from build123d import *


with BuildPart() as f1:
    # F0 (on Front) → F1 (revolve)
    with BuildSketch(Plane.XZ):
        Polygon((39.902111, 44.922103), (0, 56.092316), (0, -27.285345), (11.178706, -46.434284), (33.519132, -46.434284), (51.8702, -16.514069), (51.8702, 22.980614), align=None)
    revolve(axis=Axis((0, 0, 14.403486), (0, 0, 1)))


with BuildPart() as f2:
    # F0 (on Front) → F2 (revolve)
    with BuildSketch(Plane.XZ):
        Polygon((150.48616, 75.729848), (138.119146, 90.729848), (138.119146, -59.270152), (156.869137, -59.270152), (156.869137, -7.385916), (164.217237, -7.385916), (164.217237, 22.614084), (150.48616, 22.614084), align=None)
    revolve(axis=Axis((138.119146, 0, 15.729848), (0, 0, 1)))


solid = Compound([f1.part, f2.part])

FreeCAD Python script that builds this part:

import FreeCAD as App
import Part
import Sketcher
Q = App.Units.Quantity


def add_polygon(sketch, points):
    """Adds a closed chain of lines whose ends are joined by coincident constraints."""
    first, n = sketch.GeometryCount, len(points)
    for a, b in zip(points, points[1:] + points[:1]):
        sketch.addGeometry(Part.LineSegment(App.Vector(*a, 0), App.Vector(*b, 0)), False)
    for i in range(n):
        sketch.addConstraint(Sketcher.Constraint("Coincident", first + i, 2, first + (i + 1) % n, 1))

doc = App.newDocument("Part")
params = doc.addObject("Spreadsheet::Sheet", "Params")
for row, (alias, value) in enumerate([
    ("revolution_angle", "360 deg"),
    ("sketch2_height", "150 mm"),
    ("sketch2_height2", "30 mm"),
    ("revolution2_angle", "360 deg"),
], start=1):
    params.set(f"A{row}", alias)
    params.set(f"B{row}", "=" + value)
    params.setAlias(f"B{row}", alias)

body = doc.addObject("PartDesign::Body", "Body")

# Sketch on XZ plane
sketch1 = body.newObject("Sketcher::SketchObject", "Sketch")
sketch1.AttachmentSupport = (doc.getObject("XZ_Plane"), [""])
sketch1.MapMode = "FlatFace"
add_polygon(sketch1, [(39.902111, 44.922103), (0, 56.092316), (0, -27.285345), (11.178706, -46.434284), (33.519132, -46.434284), (51.8702, -16.514069), (51.8702, 22.980614)])  # lines 0-6
sketch1.addConstraint([
    Sketcher.Constraint("Vertical", 1),
    Sketcher.Constraint("Horizontal", 3),
    Sketcher.Constraint("Vertical", 5),
    Sketcher.Constraint("PointOnObject", 0, 2, -2),
    Sketcher.Constraint("DistanceY", 1, 2, 1, 1, Q("83.377661 mm")),
    Sketcher.Constraint("DistanceX", -1, 1, 4, 2, Q("51.8702 mm")),
    Sketcher.Constraint("DistanceY", 2, 2, 0, 2, Q("102.5266 mm")),
    Sketcher.Constraint("DistanceY", 5, 2, 0, 2, Q("33.111702 mm")),
    Sketcher.Constraint("Distance", 0, Q("41.436121 mm")),
    Sketcher.Constraint("Distance", 6, Q("24.993281 mm")),
    Sketcher.Constraint("DistanceX", 3, 1, 3, 2, Q("22.340426 mm")),
    Sketcher.Constraint("DistanceY", 5, 1, 5, 2, Q("39.494683 mm")),
    Sketcher.Constraint("DistanceY", 4, 2, -1, 1, Q("16.514069 mm")),
    Sketcher.Constraint("DistanceX", 3, 2, 6, 2, Q("6.382979 mm")),
])
revolution = body.newObject("PartDesign::Revolution", "Revolution")
revolution.Profile = sketch1
revolution.ReferenceAxis = (sketch1, ["V_Axis"])
revolution.setExpression("Angle", "Params.revolution_angle")
body2 = doc.addObject("PartDesign::Body", "Body001")

# Sketch on XZ plane
sketch2 = body2.newObject("Sketcher::SketchObject", "Sketch001")
sketch2.AttachmentSupport = (doc.getObject("XZ_Plane001"), [""])
sketch2.MapMode = "FlatFace"
add_polygon(sketch2, [(150.48616, 75.729848), (138.119146, 90.729848), (138.119146, -59.270152), (156.869137, -59.270152), (156.869137, -7.385916), (164.217237, -7.385916), (164.217237, 22.614084), (150.48616, 22.614084)])  # lines 0-7
sketch2.addGeometry(Part.LineSegment(App.Vector(138.119146, -59.270152, 0), App.Vector(138.119146, 90.729848, 0)), True)  # axis
sketch2.addConstraint([
    Sketcher.Constraint("Vertical", 1),
    Sketcher.Constraint("Horizontal", 2),
    Sketcher.Constraint("Vertical", 3),
    Sketcher.Constraint("Horizontal", 4),
    Sketcher.Constraint("Vertical", 5),
    Sketcher.Constraint("Horizontal", 6),
    Sketcher.Constraint("Vertical", 7),
    Sketcher.Constraint("Vertical", 8),
    Sketcher.Constraint("Coincident", 8, 1, 1, 2),
    Sketcher.Constraint("Equal", 1, 8),
    Sketcher.Constraint("DistanceY", 1, 2, 1, 1, Q("150 mm")),
    Sketcher.Constraint("DistanceY", 5, 1, 5, 2, Q("30 mm")),
    Sketcher.Constraint("DistanceY", 7, 2, 0, 2, Q("15 mm")),
    Sketcher.Constraint("DistanceX", 4, 1, 4, 2, Q("7.3481 mm")),
    Sketcher.Constraint("DistanceX", 2, 1, 2, 2, Q("18.749991 mm")),
    Sketcher.Constraint("DistanceX", 6, 2, 6, 1, Q("13.731077 mm")),
    Sketcher.Constraint("DistanceY", 3, 1, 3, 2, Q("51.884236 mm")),
    Sketcher.Constraint("DistanceY", -1, 1, 0, 2, Q("90.729848 mm")),
    Sketcher.Constraint("DistanceX", -1, 1, 6, 2, Q("150.48616 mm")),
])
sketch2.setExpression("Constraints[18]", "Params.sketch2_height")
sketch2.setExpression("Constraints[19]", "Params.sketch2_height2")
revolution2 = body2.newObject("PartDesign::Revolution", "Revolution001")
revolution2.Profile = sketch2
revolution2.ReferenceAxis = (sketch2, ["Axis0"])
revolution2.setExpression("Angle", "Params.revolution2_angle")

doc.recompute()
